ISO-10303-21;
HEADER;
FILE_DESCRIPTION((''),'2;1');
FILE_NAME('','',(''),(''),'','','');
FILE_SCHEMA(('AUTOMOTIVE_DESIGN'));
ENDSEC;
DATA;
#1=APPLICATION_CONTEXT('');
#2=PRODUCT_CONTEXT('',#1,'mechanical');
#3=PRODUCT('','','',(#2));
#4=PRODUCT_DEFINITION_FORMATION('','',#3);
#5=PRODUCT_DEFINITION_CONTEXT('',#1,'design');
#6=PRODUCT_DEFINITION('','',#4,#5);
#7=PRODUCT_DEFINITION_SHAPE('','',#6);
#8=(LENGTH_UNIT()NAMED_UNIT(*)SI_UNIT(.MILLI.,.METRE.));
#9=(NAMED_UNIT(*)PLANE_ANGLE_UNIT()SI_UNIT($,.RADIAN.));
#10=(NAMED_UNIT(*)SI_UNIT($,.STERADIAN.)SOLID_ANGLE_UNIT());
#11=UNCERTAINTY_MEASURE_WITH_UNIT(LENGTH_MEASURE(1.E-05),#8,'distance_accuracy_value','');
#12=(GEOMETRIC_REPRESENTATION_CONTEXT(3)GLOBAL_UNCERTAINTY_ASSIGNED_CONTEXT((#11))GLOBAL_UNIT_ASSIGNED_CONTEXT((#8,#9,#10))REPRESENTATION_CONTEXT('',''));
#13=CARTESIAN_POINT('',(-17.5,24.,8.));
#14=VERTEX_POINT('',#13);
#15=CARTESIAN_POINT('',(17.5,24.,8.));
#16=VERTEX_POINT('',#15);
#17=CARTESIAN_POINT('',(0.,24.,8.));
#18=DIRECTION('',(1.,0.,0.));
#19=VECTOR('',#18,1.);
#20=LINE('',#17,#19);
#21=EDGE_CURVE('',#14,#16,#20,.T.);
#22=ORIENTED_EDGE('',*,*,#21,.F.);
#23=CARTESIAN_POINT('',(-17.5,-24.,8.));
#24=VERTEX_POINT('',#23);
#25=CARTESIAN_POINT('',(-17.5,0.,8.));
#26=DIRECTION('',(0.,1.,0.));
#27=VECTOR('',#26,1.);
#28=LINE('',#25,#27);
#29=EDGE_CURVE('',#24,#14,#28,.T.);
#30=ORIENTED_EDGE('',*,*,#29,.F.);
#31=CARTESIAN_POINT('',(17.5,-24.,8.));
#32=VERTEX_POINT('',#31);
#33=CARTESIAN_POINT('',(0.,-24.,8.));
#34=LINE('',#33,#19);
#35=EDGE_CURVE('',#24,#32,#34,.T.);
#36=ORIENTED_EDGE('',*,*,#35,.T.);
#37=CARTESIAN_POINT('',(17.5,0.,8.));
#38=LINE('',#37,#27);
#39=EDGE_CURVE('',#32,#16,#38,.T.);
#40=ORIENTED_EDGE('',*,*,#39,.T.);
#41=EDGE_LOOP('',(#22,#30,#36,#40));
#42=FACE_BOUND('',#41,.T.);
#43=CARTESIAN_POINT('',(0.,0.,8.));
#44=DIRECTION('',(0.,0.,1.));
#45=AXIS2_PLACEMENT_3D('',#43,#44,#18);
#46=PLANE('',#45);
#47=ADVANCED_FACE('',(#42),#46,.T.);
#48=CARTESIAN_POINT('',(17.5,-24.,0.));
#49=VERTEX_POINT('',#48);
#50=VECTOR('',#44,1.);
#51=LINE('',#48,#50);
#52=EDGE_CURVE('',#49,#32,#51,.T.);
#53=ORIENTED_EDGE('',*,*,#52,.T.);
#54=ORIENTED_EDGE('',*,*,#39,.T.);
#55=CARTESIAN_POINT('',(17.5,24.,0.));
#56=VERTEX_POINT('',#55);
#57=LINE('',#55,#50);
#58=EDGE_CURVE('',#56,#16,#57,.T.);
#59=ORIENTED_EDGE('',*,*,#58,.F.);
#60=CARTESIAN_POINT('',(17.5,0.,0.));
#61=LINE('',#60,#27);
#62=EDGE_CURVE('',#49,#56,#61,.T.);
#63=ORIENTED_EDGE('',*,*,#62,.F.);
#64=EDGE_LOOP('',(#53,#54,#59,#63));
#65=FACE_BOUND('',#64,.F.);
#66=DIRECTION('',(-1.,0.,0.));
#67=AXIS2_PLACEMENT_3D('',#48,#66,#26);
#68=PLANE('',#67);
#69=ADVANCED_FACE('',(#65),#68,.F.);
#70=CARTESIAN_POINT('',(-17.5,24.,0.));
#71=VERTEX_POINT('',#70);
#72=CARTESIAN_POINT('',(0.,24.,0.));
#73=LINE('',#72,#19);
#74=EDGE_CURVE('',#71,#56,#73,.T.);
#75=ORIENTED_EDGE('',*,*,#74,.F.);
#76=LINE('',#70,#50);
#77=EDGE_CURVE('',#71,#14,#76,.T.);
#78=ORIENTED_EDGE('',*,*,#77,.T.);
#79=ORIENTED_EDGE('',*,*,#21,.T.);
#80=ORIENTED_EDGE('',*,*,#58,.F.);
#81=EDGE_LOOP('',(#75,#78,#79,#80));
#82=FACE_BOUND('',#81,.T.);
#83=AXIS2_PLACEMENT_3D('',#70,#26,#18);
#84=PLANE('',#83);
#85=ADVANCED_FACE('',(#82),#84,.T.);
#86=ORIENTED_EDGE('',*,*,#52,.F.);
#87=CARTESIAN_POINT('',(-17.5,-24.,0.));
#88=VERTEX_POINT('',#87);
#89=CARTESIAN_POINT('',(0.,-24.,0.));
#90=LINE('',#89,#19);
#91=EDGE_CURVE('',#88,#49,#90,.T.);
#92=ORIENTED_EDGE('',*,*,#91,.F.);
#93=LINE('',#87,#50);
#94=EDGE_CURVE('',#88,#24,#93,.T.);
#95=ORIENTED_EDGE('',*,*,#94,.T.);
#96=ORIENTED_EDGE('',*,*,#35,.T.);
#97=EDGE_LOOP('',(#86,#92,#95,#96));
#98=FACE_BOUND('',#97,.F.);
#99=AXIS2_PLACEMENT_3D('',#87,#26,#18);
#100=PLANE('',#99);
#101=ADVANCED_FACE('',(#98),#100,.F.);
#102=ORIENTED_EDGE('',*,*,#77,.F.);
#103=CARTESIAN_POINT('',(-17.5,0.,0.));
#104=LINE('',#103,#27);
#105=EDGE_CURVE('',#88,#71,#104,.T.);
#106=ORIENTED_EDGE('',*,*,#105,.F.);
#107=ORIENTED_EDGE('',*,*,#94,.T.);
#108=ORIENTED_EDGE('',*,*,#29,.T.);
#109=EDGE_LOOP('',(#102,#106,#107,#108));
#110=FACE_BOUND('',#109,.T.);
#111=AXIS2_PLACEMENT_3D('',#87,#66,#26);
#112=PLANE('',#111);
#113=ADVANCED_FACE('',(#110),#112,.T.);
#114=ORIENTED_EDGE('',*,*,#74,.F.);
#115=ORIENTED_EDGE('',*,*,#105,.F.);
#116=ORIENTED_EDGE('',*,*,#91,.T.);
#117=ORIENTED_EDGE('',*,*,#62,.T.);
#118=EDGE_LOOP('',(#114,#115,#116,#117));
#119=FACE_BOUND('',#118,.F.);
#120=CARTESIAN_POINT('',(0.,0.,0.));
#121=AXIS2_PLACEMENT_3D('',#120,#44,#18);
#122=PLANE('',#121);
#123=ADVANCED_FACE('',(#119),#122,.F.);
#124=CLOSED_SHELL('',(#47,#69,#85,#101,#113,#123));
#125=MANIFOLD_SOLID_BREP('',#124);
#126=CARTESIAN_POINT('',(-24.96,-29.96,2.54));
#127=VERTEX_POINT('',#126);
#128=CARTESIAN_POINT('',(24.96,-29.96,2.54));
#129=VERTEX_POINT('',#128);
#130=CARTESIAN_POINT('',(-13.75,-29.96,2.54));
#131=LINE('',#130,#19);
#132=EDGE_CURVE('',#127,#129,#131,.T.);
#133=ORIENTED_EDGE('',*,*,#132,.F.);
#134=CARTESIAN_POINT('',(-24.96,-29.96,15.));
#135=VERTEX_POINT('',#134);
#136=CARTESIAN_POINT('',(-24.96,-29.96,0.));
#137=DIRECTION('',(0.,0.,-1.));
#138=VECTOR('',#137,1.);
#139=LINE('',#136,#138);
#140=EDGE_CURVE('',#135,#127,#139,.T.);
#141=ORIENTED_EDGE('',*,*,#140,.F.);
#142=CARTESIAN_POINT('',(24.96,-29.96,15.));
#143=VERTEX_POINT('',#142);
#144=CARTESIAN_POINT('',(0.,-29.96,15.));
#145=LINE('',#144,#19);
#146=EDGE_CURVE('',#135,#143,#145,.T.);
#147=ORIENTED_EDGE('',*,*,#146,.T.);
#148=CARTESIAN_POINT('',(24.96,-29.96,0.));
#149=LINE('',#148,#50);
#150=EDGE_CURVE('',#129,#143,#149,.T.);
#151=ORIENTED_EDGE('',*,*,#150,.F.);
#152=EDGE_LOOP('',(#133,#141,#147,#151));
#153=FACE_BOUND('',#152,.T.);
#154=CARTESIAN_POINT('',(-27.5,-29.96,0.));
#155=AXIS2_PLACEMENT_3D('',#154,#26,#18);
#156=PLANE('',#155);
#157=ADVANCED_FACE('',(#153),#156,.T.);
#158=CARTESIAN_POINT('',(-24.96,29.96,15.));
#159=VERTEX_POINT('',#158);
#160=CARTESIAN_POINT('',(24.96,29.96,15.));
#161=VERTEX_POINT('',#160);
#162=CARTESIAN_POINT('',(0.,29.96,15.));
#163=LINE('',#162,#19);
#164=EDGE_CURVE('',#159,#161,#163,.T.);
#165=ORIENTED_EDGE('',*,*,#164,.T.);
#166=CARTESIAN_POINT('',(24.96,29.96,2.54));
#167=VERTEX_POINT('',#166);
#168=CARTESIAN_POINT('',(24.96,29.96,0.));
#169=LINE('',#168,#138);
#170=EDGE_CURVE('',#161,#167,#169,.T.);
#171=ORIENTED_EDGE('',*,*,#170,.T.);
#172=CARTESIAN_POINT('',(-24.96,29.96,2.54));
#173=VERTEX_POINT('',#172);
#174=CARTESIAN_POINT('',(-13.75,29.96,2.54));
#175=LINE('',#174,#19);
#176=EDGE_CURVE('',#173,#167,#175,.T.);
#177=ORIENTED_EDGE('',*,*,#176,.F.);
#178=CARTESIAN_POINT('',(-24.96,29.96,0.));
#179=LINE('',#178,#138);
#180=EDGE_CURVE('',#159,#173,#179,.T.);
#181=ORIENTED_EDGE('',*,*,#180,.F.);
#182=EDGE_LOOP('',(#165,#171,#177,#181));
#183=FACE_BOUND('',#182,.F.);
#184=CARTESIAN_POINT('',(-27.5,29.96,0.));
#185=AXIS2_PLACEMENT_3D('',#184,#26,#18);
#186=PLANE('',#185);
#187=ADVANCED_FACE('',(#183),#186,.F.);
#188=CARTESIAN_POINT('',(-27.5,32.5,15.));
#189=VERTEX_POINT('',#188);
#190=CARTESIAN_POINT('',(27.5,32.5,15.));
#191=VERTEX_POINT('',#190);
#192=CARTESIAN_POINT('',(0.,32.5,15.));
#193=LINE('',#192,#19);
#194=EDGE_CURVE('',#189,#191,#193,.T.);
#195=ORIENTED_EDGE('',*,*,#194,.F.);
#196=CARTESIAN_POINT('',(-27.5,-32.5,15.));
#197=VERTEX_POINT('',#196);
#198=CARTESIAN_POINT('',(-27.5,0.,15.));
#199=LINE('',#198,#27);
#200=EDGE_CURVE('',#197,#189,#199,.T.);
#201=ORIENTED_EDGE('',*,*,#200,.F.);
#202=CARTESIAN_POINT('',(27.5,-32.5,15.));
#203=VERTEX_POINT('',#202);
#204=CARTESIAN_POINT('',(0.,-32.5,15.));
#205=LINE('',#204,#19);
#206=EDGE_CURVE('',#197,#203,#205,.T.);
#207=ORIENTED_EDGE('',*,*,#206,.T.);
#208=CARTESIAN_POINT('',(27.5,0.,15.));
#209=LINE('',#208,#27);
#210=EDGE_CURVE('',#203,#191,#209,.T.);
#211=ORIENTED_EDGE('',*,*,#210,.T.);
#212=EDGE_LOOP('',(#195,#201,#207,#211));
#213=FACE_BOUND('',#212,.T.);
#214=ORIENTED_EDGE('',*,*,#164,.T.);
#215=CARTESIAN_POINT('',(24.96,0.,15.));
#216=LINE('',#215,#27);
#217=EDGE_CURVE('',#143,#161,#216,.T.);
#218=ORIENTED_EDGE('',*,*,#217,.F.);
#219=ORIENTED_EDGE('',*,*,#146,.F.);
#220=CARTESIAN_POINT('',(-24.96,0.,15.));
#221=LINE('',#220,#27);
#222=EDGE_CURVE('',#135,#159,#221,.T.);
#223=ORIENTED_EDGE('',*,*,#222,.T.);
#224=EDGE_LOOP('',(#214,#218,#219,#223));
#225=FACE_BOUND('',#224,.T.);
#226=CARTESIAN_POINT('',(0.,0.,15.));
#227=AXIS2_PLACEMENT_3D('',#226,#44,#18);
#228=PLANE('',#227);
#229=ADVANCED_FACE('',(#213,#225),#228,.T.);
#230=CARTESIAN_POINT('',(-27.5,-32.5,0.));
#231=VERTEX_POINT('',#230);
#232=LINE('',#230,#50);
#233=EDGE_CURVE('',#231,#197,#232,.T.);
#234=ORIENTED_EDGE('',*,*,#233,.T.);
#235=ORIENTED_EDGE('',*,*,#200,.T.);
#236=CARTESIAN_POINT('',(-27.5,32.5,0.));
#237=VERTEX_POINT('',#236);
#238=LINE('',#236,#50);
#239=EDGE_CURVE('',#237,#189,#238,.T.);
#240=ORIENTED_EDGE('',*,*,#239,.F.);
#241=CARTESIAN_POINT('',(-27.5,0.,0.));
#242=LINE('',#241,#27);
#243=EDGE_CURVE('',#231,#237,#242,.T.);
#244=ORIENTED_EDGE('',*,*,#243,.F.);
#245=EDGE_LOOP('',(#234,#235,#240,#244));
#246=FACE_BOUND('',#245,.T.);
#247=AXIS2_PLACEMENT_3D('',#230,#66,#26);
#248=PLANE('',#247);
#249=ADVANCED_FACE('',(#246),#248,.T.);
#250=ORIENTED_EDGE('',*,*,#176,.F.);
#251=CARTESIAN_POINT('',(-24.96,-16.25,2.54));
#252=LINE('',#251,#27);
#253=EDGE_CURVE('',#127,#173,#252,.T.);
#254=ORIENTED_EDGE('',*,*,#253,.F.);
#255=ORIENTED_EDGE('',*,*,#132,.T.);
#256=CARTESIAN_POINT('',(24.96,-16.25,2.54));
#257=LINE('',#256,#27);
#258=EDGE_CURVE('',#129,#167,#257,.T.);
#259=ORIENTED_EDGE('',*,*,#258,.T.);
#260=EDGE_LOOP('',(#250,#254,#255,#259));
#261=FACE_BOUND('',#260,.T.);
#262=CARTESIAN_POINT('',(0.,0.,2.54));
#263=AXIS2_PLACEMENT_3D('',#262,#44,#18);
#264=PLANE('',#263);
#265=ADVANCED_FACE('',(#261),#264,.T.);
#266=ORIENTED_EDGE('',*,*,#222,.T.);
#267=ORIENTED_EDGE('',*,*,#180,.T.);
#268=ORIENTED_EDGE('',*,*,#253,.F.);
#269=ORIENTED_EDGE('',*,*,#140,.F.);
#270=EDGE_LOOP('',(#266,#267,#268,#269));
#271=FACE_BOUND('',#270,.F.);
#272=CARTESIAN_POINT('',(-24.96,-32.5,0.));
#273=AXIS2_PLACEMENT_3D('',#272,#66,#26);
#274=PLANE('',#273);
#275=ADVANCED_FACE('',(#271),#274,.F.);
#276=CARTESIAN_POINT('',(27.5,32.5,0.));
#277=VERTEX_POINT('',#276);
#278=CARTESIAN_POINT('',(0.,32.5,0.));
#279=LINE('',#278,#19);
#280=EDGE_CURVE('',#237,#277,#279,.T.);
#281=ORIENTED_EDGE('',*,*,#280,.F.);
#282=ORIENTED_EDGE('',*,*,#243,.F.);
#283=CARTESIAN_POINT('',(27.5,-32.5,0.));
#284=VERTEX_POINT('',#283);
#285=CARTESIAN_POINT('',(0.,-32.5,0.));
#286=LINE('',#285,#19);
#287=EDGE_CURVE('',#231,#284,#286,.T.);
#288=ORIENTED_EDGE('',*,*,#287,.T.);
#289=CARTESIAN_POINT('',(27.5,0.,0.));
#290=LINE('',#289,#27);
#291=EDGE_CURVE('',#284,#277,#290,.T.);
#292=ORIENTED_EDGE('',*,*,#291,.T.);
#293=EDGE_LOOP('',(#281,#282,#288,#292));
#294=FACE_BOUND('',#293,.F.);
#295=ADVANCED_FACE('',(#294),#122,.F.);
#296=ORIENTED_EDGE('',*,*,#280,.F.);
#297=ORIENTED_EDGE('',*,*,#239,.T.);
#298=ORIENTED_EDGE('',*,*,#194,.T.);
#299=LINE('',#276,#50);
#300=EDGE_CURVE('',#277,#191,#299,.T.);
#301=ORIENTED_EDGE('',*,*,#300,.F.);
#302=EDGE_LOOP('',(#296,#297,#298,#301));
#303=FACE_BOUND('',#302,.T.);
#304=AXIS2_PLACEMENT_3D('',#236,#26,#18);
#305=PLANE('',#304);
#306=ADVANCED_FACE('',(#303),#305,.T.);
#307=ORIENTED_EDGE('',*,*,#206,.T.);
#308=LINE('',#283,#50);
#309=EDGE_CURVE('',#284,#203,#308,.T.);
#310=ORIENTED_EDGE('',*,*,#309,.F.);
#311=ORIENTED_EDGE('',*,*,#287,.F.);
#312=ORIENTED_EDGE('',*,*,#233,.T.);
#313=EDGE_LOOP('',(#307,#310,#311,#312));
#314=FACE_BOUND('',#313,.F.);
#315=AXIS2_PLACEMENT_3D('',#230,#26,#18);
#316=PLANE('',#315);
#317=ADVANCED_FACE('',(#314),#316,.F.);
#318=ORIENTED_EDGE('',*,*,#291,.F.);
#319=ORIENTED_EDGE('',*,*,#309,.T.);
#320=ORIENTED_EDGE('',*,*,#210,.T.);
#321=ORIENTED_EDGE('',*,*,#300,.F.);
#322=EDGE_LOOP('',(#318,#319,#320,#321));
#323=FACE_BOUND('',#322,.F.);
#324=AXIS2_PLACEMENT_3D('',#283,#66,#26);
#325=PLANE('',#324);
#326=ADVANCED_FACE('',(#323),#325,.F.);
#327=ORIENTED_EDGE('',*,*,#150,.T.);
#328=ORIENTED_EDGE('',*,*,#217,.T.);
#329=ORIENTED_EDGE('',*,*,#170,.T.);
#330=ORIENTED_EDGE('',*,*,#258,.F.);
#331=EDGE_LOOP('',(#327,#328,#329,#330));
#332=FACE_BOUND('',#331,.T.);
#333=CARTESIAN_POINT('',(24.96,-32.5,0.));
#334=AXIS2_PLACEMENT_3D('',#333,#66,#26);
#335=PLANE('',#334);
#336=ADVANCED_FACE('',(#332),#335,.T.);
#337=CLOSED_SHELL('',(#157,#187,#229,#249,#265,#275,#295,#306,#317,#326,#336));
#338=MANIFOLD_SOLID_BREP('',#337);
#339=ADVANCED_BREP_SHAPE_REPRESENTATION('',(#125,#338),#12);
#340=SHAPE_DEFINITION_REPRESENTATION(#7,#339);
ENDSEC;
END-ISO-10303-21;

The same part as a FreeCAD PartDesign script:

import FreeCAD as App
import Part
import Sketcher
Q = App.Units.Quantity


def faces_at(feature, points):
    """Names of the faces that lie closest to the given points."""
    faces = feature.Shape.Faces
    near = lambda p: min(range(len(faces)), key=lambda i: faces[i].distToShape(Part.Vertex(*p))[0])
    return sorted({f"Face{near(p) + 1}" for p in points})


def add_polygon(sketch, points):
    """Adds a closed chain of lines whose ends are joined by coincident constraints."""
    first, n = sketch.GeometryCount, len(points)
    for a, b in zip(points, points[1:] + points[:1]):
        sketch.addGeometry(Part.LineSegment(App.Vector(*a, 0), App.Vector(*b, 0)), False)
    for i in range(n):
        sketch.addConstraint(Sketcher.Constraint("Coincident", first + i, 2, first + (i + 1) % n, 1))

doc = App.newDocument("Part")
body = doc.addObject("PartDesign::Body", "Body")

sketch1 = doc.addObject("Sketcher::SketchObject", "Sketch")
body.addObject(sketch1)
sketch1.AttachmentSupport = (doc.XY_Plane, [""])
sketch1.MapMode = "FlatFace"
add_polygon(sketch1, [(-27.5, 32.5), (-27.5, -32.5), (27.5, -32.5), (27.5, 32.5)])
sketch1.addConstraint([
    Sketcher.Constraint("Vertical", 0),
    Sketcher.Constraint("Horizontal", 1),
    Sketcher.Constraint("Vertical", 2),
    Sketcher.Constraint("Horizontal", 3),
    Sketcher.Constraint("Symmetric", 0, 2, 2, 2, -1, 1),
    Sketcher.Constraint("DistanceX", 1, 1, 1, 2, Q("55 mm")),
    Sketcher.Constraint("DistanceY", 0, 2, 0, 1, Q("65 mm")),
])
pad1 = doc.addObject("PartDesign::Pad", "Pad")
body.addObject(pad1)
pad1.Profile = sketch1
pad1.Length = 15
doc.recompute()

thickness = doc.addObject("PartDesign::Thickness", "Thickness")
body.addObject(thickness)
thickness.Base = (pad1, faces_at(pad1, [(0, 0, 15)]))
thickness.Value = 2.54
thickness.Reversed = True
thickness.Join = "Arc"
body2 = doc.addObject("PartDesign::Body", "Body001")

sketch2 = doc.addObject("Sketcher::SketchObject", "Sketch001")
body2.addObject(sketch2)
sketch2.AttachmentSupport = (doc.getObject("XY_Plane001"), [""])
sketch2.MapMode = "FlatFace"
add_polygon(sketch2, [(-17.5, 24), (-17.5, -24), (17.5, -24), (17.5, 24)])
sketch2.addConstraint([
    Sketcher.Constraint("Vertical", 0),
    Sketcher.Constraint("Horizontal", 1),
    Sketcher.Constraint("Vertical", 2),
    Sketcher.Constraint("Horizontal", 3),
    Sketcher.Constraint("Symmetric", 0, 2, 2, 2, -1, 1),
    Sketcher.Constraint("DistanceX", 1, 1, 1, 2, Q("35 mm")),
    Sketcher.Constraint("DistanceY", 0, 2, 0, 1, Q("48 mm")),
])
pad2 = doc.addObject("PartDesign::Pad", "Pad001")
body2.addObject(pad2)
pad2.Profile = sketch2
pad2.Length = 8

doc.recompute()
